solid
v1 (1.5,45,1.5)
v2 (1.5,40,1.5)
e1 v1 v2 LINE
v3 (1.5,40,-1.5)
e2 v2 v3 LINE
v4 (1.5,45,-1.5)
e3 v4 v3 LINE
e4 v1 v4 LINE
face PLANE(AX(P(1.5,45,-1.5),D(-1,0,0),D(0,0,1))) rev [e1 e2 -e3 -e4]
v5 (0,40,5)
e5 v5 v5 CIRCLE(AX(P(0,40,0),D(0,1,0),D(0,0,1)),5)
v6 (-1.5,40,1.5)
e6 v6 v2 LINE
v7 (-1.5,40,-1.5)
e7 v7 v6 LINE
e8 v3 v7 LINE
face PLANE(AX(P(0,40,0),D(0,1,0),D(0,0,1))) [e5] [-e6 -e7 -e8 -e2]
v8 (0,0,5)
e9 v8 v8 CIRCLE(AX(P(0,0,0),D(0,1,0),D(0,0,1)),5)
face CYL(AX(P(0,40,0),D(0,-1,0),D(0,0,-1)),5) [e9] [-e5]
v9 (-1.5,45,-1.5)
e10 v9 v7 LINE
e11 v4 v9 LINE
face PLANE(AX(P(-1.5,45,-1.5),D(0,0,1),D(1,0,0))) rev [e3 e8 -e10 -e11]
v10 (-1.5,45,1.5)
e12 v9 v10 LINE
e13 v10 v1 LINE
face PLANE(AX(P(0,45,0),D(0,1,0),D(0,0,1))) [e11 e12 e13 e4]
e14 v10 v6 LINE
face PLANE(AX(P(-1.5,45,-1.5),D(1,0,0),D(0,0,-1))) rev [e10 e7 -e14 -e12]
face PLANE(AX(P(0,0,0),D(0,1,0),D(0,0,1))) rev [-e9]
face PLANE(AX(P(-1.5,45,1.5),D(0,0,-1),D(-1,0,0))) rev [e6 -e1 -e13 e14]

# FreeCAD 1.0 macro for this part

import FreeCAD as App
import Part
import Sketcher

V = App.Vector

doc = App.newDocument("Part")
body = doc.addObject("PartDesign::Body", "Body")

# Sketch on XZ plane
sketch1 = doc.addObject("Sketcher::SketchObject", "Sketch")
body.addObject(sketch1)
sketch1.AttachmentSupport = (doc.XZ_Plane, [""])
sketch1.MapMode = "FlatFace"
sketch1.addGeometry(Part.Circle(V(0, 0, 0), V(0, 0, 1), 5), False)
sketch1.addConstraint(Sketcher.Constraint("Coincident", 0, 3, -1, 1))
sketch1.addConstraint(Sketcher.Constraint("Diameter", 0, 10.0))
pad1 = doc.addObject("PartDesign::Pad", "Pad")
body.addObject(pad1)
pad1.Profile = sketch1
pad1.Length = 40
pad1.Reversed = True

# Sketch on XZ plane
sketch2 = doc.addObject("Sketcher::SketchObject", "Sketch001")
body.addObject(sketch2)
sketch2.AttachmentSupport = (doc.XZ_Plane, [""])
sketch2.MapMode = "FlatFace"
sketch2.AttachmentOffset = App.Placement(V(0, 0, -40), App.Rotation())
sketch2.addGeometry(Part.LineSegment(V(-1.5, -1.5, 0), V(-1.5, 1.5, 0)), False)
sketch2.addGeometry(Part.LineSegment(V(-1.5, 1.5, 0), V(1.5, 1.5, 0)), False)
sketch2.addGeometry(Part.LineSegment(V(1.5, 1.5, 0), V(1.5, -1.5, 0)), False)
sketch2.addGeometry(Part.LineSegment(V(1.5, -1.5, 0), V(-1.5, -1.5, 0)), False)
sketch2.addConstraint(Sketcher.Constraint("Coincident", 0, 2, 1, 1))
sketch2.addConstraint(Sketcher.Constraint("Coincident", 1, 2, 2, 1))
sketch2.addConstraint(Sketcher.Constraint("Coincident", 2, 2, 3, 1))
sketch2.addConstraint(Sketcher.Constraint("Coincident", 3, 2, 0, 1))
sketch2.addConstraint(Sketcher.Constraint("Vertical", 0))
sketch2.addConstraint(Sketcher.Constraint("Horizontal", 1))
sketch2.addConstraint(Sketcher.Constraint("Vertical", 2))
sketch2.addConstraint(Sketcher.Constraint("Horizontal", 3))
sketch2.addConstraint(Sketcher.Constraint("Symmetric", 0, 2, 2, 2, -1, 1))
sketch2.addConstraint(Sketcher.Constraint("Equal", 3, 0))
sketch2.addConstraint(Sketcher.Constraint("DistanceX", 1, 1, 1, 2, 3.0))
pad2 = doc.addObject("PartDesign::Pad", "Pad001")
body.addObject(pad2)
pad2.Profile = sketch2
pad2.Length = 5
pad2.Reversed = True

doc.recompute()
